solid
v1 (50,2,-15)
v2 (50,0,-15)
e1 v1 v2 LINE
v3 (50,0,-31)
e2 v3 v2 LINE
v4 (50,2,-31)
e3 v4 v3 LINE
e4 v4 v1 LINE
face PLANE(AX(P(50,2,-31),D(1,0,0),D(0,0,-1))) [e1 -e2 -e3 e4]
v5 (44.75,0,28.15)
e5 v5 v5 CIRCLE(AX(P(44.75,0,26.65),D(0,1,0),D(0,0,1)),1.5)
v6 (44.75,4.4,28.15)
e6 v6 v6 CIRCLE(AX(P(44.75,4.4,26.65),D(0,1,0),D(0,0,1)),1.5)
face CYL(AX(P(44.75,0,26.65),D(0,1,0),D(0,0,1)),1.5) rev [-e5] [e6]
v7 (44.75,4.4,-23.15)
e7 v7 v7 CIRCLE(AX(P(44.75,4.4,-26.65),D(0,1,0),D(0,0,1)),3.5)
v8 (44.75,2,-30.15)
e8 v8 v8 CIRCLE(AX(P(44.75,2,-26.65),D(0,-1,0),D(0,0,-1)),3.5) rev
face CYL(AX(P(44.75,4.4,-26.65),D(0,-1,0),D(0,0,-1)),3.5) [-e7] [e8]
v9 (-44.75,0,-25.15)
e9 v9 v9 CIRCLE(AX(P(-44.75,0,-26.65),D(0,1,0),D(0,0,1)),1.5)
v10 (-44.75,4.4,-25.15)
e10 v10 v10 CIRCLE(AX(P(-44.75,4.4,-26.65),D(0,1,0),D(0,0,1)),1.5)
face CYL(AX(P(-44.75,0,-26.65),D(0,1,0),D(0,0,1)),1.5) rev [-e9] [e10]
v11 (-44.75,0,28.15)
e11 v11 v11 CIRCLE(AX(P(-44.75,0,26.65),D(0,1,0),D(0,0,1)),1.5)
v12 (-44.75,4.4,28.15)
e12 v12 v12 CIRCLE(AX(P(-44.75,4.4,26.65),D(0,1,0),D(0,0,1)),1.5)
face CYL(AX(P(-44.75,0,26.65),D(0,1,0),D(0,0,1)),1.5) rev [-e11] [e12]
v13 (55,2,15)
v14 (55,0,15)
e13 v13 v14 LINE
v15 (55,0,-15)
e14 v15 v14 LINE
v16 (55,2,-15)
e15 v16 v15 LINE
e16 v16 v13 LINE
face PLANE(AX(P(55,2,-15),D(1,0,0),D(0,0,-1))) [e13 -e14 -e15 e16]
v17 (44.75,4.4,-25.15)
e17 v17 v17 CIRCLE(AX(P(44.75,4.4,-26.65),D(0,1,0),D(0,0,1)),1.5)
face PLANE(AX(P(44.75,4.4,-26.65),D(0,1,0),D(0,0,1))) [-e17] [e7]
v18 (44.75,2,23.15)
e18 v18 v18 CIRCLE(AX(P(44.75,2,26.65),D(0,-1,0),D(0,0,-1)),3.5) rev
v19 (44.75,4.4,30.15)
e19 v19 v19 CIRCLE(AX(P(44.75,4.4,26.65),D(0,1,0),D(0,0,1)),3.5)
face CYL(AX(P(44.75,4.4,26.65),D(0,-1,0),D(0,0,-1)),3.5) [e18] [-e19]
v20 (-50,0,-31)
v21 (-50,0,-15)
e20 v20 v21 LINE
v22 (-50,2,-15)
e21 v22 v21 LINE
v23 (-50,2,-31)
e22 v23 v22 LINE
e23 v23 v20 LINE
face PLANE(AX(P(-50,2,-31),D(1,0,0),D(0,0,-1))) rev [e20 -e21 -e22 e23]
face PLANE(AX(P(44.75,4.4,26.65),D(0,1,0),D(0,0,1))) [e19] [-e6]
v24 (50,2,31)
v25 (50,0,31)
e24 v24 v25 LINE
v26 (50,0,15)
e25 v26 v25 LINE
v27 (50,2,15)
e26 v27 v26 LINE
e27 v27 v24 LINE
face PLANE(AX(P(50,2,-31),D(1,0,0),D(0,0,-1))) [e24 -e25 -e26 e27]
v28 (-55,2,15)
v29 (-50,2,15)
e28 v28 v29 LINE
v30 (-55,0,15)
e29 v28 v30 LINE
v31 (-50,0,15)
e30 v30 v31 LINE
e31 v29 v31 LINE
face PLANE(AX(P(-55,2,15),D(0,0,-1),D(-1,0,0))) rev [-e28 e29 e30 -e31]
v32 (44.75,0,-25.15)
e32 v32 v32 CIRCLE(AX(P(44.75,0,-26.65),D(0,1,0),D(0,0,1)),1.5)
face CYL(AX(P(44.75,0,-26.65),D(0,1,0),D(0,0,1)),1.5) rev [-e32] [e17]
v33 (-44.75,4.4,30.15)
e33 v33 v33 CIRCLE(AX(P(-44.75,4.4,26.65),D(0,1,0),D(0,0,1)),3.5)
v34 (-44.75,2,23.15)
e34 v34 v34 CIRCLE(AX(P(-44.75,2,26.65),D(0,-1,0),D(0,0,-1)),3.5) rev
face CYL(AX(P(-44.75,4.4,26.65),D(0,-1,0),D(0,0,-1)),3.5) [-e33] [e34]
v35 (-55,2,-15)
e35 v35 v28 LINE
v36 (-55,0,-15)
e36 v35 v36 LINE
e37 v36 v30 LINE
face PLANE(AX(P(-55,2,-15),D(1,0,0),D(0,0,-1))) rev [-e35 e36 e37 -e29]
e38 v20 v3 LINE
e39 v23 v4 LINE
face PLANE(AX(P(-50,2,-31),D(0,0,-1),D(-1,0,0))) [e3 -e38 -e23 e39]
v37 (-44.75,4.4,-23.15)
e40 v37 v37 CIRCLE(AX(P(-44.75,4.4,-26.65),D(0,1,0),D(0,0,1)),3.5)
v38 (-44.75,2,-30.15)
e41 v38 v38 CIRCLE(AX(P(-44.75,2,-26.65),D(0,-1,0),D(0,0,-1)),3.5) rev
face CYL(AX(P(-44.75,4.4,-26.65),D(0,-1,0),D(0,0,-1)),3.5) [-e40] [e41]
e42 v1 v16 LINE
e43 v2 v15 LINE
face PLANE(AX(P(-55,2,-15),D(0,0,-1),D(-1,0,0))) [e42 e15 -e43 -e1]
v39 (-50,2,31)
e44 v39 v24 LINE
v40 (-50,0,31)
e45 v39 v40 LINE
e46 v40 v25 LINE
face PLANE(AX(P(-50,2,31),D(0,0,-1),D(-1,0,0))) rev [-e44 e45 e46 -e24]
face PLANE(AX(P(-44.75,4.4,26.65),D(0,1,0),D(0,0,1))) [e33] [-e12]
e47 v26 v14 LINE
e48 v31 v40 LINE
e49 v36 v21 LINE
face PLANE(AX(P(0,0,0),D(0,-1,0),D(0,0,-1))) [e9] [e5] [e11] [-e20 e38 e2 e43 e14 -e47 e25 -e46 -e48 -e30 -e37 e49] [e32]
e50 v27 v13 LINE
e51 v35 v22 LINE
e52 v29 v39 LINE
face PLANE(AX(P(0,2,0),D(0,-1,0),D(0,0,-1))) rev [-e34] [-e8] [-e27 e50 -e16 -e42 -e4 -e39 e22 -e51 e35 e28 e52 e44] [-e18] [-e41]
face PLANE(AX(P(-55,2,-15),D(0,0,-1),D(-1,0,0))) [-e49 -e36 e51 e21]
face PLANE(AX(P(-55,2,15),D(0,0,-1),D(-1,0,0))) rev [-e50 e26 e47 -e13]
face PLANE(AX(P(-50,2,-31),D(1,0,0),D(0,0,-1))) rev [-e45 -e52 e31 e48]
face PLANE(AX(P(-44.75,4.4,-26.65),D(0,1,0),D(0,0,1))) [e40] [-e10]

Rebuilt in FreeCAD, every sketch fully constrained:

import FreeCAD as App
import Part
import Sketcher
from FreeCAD import Vector


def add_polygon(sketch, points):
    """Adds a closed chain of lines whose ends are joined by coincident constraints."""
    first, n = sketch.GeometryCount, len(points)
    for a, b in zip(points, points[1:] + points[:1]):
        sketch.addGeometry(Part.LineSegment(App.Vector(*a, 0), App.Vector(*b, 0)), False)
    for i in range(n):
        sketch.addConstraint(Sketcher.Constraint("Coincident", first + i, 2, first + (i + 1) % n, 1))

doc = App.newDocument("Part")
params = doc.addObject("Spreadsheet::Sheet", "Params")
for row, (alias, value) in enumerate([
    ("sketch1_width", "100 mm"),
    ("sketch1_width2", "5 mm"),
    ("sketch1_height", "16 mm"),
    ("sketch1_height2", "30 mm"),
    ("pad1_length", "2 mm"),
    ("sketch2_diameter", "3 mm"),
    ("pocket1_length", "2 mm"),
    ("sketch3_diameter", "7 mm"),
    ("sketch3_diameter2", "3 mm"),
    ("pad2_length", "2.4 mm"),
], start=1):
    params.set(f"A{row}", alias)
    params.set(f"B{row}", "=" + value)
    params.setAlias(f"B{row}", alias)

body = doc.addObject("PartDesign::Body", "Body")

# Sketch on XZ plane
sketch1 = body.newObject("Sketcher::SketchObject", "Sketch")
sketch1.AttachmentSupport = (doc.getObject("XZ_Plane"), [""])
sketch1.MapMode = "FlatFace"
add_polygon(sketch1, [(-50, 15), (-50, 31), (50, 31), (50, 15), (55, 15), (55, -15), (50, -15), (50, -31), (-50, -31), (-50, -15), (-55, -15), (-55, 15)])  # lines 0-11
sketch1.addConstraint(Sketcher.Constraint("Vertical", 0))
sketch1.addConstraint(Sketcher.Constraint("Horizontal", 1))
sketch1.addConstraint(Sketcher.Constraint("Vertical", 2))
sketch1.addConstraint(Sketcher.Constraint("Horizontal", 3))
sketch1.addConstraint(Sketcher.Constraint("Vertical", 4))
sketch1.addConstraint(Sketcher.Constraint("Horizontal", 5))
sketch1.addConstraint(Sketcher.Constraint("Vertical", 6))
sketch1.addConstraint(Sketcher.Constraint("Horizontal", 7))
sketch1.addConstraint(Sketcher.Constraint("Vertical", 8))
sketch1.addConstraint(Sketcher.Constraint("Horizontal", 9))
sketch1.addConstraint(Sketcher.Constraint("Vertical", 10))
sketch1.addConstraint(Sketcher.Constraint("Horizontal", 11))
sketch1.addConstraint(Sketcher.Constraint("Symmetric", 0, 2, 6, 2, -1, 1))
sketch1.addConstraint(Sketcher.Constraint("Symmetric", 2, 2, 8, 2, -1, 1))
sketch1.addConstraint(Sketcher.Constraint("Symmetric", 4, 2, 10, 2, -1, 1))
sketch1.addConstraint(Sketcher.Constraint("Symmetric", 5, 2, 8, 2, -2))
sketch1.addConstraint(Sketcher.Constraint("DistanceX", 1, 1, 1, 2, 100.0))
sketch1.addConstraint(Sketcher.Constraint("DistanceX", 3, 1, 3, 2, 5.0))
sketch1.addConstraint(Sketcher.Constraint("DistanceY", 0, 1, 0, 2, 16.0))
sketch1.addConstraint(Sketcher.Constraint("DistanceY", 4, 2, 4, 1, 30.0))
sketch1.setExpression("Constraints[28]", "Params.sketch1_width")
sketch1.setExpression("Constraints[29]", "Params.sketch1_width2")
sketch1.setExpression("Constraints[30]", "Params.sketch1_height")
sketch1.setExpression("Constraints[31]", "Params.sketch1_height2")
pad1 = body.newObject("PartDesign::Pad", "Pad")
pad1.Profile = sketch1
pad1.setExpression("Length", "Params.pad1_length")
pad1.Reversed = True

# Sketch on XZ plane
sketch2 = body.newObject("Sketcher::SketchObject", "Sketch001")
sketch2.AttachmentSupport = (doc.getObject("XZ_Plane"), [""])
sketch2.MapMode = "FlatFace"
sketch2.AttachmentOffset = App.Placement(Vector(0, 0, -2), App.Rotation())
sketch2.addGeometry(Part.Circle(Vector(-44.8, -26.6, 0), Vector(0, 0, 1), 1.5), False)
sketch2.addGeometry(Part.Circle(Vector(44.8, -26.6, 0), Vector(0, 0, 1), 1.5), False)
sketch2.addGeometry(Part.Circle(Vector(-44.8, 26.6, 0), Vector(0, 0, 1), 1.5), False)
sketch2.addGeometry(Part.Circle(Vector(44.8, 26.6, 0), Vector(0, 0, 1), 1.5), False)
sketch2.addConstraint(Sketcher.Constraint("Equal", 0, 1))
sketch2.addConstraint(Sketcher.Constraint("Equal", 1, 2))
sketch2.addConstraint(Sketcher.Constraint("Equal", 2, 3))
sketch2.addConstraint(Sketcher.Constraint("Symmetric", 1, 3, 2, 3, -1, 1))
sketch2.addConstraint(Sketcher.Constraint("Symmetric", 0, 3, 3, 3, -1, 1))
sketch2.addConstraint(Sketcher.Constraint("Symmetric", 0, 3, 1, 3, -2))
sketch2.addConstraint(Sketcher.Constraint("Diameter", 0, 3.0))
sketch2.addConstraint(Sketcher.Constraint("DistanceX", 0, 3, 1, 3, 89.5))
sketch2.addConstraint(Sketcher.Constraint("DistanceY", 0, 3, 2, 3, 53.3))
sketch2.setExpression("Constraints[6]", "Params.sketch2_diameter")
pocket1 = body.newObject("PartDesign::Pocket", "Pocket")
pocket1.Profile = sketch2
pocket1.setExpression("Length", "Params.pocket1_length")
pocket1.Reversed = True

# Sketch on XZ plane
sketch3 = body.newObject("Sketcher::SketchObject", "Sketch002")
sketch3.AttachmentSupport = (doc.getObject("XZ_Plane"), [""])
sketch3.MapMode = "FlatFace"
sketch3.AttachmentOffset = App.Placement(Vector(0, 0, -2), App.Rotation())
sketch3.addGeometry(Part.Circle(Vector(-44.8, -26.6, 0), Vector(0, 0, 1), 3.5), False)
sketch3.addGeometry(Part.Circle(Vector(-44.8, -26.6, 0), Vector(0, 0, 1), 1.5), False)
sketch3.addGeometry(Part.Circle(Vector(44.8, -26.6, 0), Vector(0, 0, 1), 3.5), False)
sketch3.addGeometry(Part.Circle(Vector(44.8, -26.6, 0), Vector(0, 0, 1), 1.5), False)
sketch3.addGeometry(Part.Circle(Vector(-44.8, 26.6, 0), Vector(0, 0, 1), 3.5), False)
sketch3.addGeometry(Part.Circle(Vector(-44.8, 26.6, 0), Vector(0, 0, 1), 1.5), False)
sketch3.addGeometry(Part.Circle(Vector(44.8, 26.6, 0), Vector(0, 0, 1), 3.5), False)
sketch3.addGeometry(Part.Circle(Vector(44.8, 26.6, 0), Vector(0, 0, 1), 1.5), False)
sketch3.addConstraint(Sketcher.Constraint("Coincident", 1, 3, 0, 3))
sketch3.addConstraint(Sketcher.Constraint("Coincident", 3, 3, 2, 3))
sketch3.addConstraint(Sketcher.Constraint("Coincident", 5, 3, 4, 3))
sketch3.addConstraint(Sketcher.Constraint("Coincident", 7, 3, 6, 3))
sketch3.addConstraint(Sketcher.Constraint("Equal", 0, 2))
sketch3.addConstraint(Sketcher.Constraint("Equal", 1, 3))
sketch3.addConstraint(Sketcher.Constraint("Equal", 2, 4))
sketch3.addConstraint(Sketcher.Constraint("Equal", 3, 5))
sketch3.addConstraint(Sketcher.Constraint("Equal", 4, 6))
sketch3.addConstraint(Sketcher.Constraint("Equal", 5, 7))
sketch3.addConstraint(Sketcher.Constraint("Symmetric", 2, 3, 4, 3, -1, 1))
sketch3.addConstraint(Sketcher.Constraint("Symmetric", 0, 3, 6, 3, -1, 1))
sketch3.addConstraint(Sketcher.Constraint("Symmetric", 0, 3, 2, 3, -2))
sketch3.addConstraint(Sketcher.Constraint("Diameter", 0, 7.0))
sketch3.addConstraint(Sketcher.Constraint("Diameter", 1, 3.0))
sketch3.addConstraint(Sketcher.Constraint("DistanceX", 0, 3, 2, 3, 89.5))
sketch3.addConstraint(Sketcher.Constraint("DistanceY", 0, 3, 4, 3, 53.3))
sketch3.setExpression("Constraints[13]", "Params.sketch3_diameter")
sketch3.setExpression("Constraints[14]", "Params.sketch3_diameter2")
pad2 = body.newObject("PartDesign::Pad", "Pad001")
pad2.Profile = sketch3
pad2.setExpression("Length", "Params.pad2_length")
pad2.Reversed = True

doc.recompute()
